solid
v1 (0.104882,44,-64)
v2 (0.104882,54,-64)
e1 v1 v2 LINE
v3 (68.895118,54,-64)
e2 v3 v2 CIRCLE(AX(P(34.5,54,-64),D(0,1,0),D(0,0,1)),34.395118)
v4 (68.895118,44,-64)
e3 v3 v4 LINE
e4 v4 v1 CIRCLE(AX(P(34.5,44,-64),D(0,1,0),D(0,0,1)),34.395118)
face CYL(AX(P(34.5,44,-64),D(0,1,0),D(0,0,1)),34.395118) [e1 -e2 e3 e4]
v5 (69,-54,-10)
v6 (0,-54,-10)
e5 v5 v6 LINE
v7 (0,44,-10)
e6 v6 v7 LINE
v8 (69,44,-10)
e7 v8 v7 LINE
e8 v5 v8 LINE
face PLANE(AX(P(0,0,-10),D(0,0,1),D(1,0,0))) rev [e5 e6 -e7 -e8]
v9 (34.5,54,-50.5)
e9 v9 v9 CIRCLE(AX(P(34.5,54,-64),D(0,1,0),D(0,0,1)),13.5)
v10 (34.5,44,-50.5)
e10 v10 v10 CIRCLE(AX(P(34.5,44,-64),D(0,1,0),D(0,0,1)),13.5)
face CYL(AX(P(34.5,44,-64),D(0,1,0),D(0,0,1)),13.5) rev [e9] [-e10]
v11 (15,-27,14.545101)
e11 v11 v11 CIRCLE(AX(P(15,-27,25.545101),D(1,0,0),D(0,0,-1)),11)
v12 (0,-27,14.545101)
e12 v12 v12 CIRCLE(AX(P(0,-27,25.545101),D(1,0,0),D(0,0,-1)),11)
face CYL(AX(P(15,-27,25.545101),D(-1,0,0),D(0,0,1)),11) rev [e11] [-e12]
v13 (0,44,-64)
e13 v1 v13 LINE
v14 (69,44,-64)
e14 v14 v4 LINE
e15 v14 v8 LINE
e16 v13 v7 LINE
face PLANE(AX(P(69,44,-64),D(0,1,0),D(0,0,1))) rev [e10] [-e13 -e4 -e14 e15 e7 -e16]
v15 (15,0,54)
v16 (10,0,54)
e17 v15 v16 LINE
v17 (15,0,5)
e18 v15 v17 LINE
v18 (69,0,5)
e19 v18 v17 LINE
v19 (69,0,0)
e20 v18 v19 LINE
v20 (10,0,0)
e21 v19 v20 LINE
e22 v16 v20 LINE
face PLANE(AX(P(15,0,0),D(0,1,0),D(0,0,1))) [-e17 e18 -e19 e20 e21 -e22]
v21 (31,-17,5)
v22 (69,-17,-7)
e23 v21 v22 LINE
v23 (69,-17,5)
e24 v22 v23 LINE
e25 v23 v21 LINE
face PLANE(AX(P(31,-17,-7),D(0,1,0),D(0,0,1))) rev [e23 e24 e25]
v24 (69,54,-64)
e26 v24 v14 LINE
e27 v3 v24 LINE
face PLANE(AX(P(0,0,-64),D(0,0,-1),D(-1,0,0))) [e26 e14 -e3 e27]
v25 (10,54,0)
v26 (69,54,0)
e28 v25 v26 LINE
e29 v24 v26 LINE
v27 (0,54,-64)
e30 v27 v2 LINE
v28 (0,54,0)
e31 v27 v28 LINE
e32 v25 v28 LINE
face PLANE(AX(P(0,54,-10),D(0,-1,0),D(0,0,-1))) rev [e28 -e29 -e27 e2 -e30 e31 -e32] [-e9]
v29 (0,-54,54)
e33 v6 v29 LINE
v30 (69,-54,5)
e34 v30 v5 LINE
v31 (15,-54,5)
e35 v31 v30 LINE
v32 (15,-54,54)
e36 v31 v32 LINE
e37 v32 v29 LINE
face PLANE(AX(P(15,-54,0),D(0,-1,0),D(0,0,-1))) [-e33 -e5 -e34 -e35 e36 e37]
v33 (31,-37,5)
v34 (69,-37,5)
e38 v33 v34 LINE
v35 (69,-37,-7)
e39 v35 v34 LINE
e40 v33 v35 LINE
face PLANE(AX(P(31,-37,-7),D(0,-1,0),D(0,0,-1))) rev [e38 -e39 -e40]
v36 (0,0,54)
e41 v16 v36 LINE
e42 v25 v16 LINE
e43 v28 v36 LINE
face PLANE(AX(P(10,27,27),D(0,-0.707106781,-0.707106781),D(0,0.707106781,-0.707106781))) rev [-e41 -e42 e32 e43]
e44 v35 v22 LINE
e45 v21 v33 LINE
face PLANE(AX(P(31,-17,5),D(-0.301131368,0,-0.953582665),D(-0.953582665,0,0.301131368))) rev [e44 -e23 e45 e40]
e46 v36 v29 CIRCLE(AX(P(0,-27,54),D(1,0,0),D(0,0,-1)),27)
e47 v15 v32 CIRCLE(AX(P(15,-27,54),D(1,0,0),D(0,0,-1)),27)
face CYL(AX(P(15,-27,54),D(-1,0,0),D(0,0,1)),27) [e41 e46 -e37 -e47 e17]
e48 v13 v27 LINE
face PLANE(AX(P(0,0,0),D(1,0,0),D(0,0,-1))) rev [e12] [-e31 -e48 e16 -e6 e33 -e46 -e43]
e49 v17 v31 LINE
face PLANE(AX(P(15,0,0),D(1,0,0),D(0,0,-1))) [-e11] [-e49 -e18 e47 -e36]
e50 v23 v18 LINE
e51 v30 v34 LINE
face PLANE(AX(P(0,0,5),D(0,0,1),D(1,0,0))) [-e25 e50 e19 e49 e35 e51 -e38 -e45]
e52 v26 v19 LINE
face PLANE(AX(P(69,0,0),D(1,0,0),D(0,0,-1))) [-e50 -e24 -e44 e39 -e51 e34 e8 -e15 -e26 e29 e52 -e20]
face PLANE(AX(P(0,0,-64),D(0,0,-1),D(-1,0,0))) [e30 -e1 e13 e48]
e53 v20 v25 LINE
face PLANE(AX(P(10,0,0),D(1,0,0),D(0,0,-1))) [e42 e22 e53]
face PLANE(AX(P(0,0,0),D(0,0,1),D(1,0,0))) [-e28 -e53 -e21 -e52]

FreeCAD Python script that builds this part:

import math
import FreeCAD as App
import Part
import Sketcher

doc = App.newDocument("Part")
body = doc.addObject("PartDesign::Body", "Body")

# Sketch on YZ plane
sketch1 = body.newObject("Sketcher::SketchObject", "Sketch")
sketch1.AttachmentSupport = (doc.getObject("YZ_Plane"), [""])
sketch1.MapMode = "FlatFace"
sketch1.addGeometry(Part.LineSegment(App.Vector(54, 0, 0), App.Vector(0, 54, 0)), False)
sketch1.addGeometry(Part.LineSegment(App.Vector(0, 54, 0), App.Vector(0, 0, 0)), False)
sketch1.addGeometry(Part.LineSegment(App.Vector(0, 0, 0), App.Vector(54, 0, 0)), False)
sketch1.addConstraint(Sketcher.Constraint("Coincident", 0, 2, 1, 1))
sketch1.addConstraint(Sketcher.Constraint("Coincident", 1, 2, 2, 1))
sketch1.addConstraint(Sketcher.Constraint("Coincident", 2, 2, 0, 1))
sketch1.addConstraint(Sketcher.Constraint("Vertical", 1))
sketch1.addConstraint(Sketcher.Constraint("Horizontal", 2))
sketch1.addConstraint(Sketcher.Constraint("Coincident", 1, 2, -1, 1))
sketch1.addConstraint(Sketcher.Constraint("Equal", 2, 1))
sketch1.addConstraint(Sketcher.Constraint("DistanceX", 2, 1, 2, 2, 54.0))
pad1 = body.newObject("PartDesign::Pad", "Pad")
pad1.Profile = sketch1
pad1.Length = 10

# Sketch on YZ plane
sketch2 = body.newObject("Sketcher::SketchObject", "Sketch001")
sketch2.AttachmentSupport = (doc.getObject("YZ_Plane"), [""])
sketch2.MapMode = "FlatFace"
sketch2.addGeometry(Part.LineSegment(App.Vector(-54, 54, 0), App.Vector(-54, 0, 0)), False)
sketch2.addGeometry(Part.LineSegment(App.Vector(-54, 0, 0), App.Vector(0, 0, 0)), False)
sketch2.addGeometry(Part.LineSegment(App.Vector(0, 0, 0), App.Vector(0, 54, 0)), False)
sketch2.addGeometry(Part.ArcOfCircle(Part.Circle(App.Vector(-27, 54, 0), App.Vector(0, 0, 1), 27), math.radians(0), math.radians(180)), False)
sketch2.addGeometry(Part.Circle(App.Vector(-27, 26, 0), App.Vector(0, 0, 1), 11), False)
sketch2.addConstraint(Sketcher.Constraint("Coincident", 0, 2, 1, 1))
sketch2.addConstraint(Sketcher.Constraint("Coincident", 1, 2, 2, 1))
sketch2.addConstraint(Sketcher.Constraint("Tangent", 2, 2, 3, 1))
sketch2.addConstraint(Sketcher.Constraint("Tangent", 3, 2, 0, 1))
sketch2.addConstraint(Sketcher.Constraint("Vertical", 0))
sketch2.addConstraint(Sketcher.Constraint("Horizontal", 1))
sketch2.addConstraint(Sketcher.Constraint("Vertical", 2))
sketch2.addConstraint(Sketcher.Constraint("Coincident", 1, 2, -1, 1))
sketch2.addConstraint(Sketcher.Constraint("Vertical", 3, 3, 4, 3))
sketch2.addConstraint(Sketcher.Constraint("Equal", 1, 0))
sketch2.addConstraint(Sketcher.Constraint("Diameter", 4, 22.0))
sketch2.addConstraint(Sketcher.Constraint("Radius", 3, 27.0))
sketch2.addConstraint(Sketcher.Constraint("DistanceY", -1, 1, 4, 3, 25.545101))
pad2 = body.newObject("PartDesign::Pad", "Pad001")
pad2.Profile = sketch2
pad2.Length = 15

# Sketch on XY plane
sketch3 = body.newObject("Sketcher::SketchObject", "Sketch002")
sketch3.AttachmentSupport = (doc.getObject("XY_Plane"), [""])
sketch3.MapMode = "FlatFace"
sketch3.addGeometry(Part.LineSegment(App.Vector(15, 54, 0), App.Vector(15, -54, 0)), False)
sketch3.addGeometry(Part.LineSegment(App.Vector(15, -54, 0), App.Vector(0, -54, 0)), False)
sketch3.addGeometry(Part.LineSegment(App.Vector(0, -54, 0), App.Vector(0, 54, 0)), False)
sketch3.addGeometry(Part.LineSegment(App.Vector(0, 54, 0), App.Vector(15, 54, 0)), False)
sketch3.addConstraint(Sketcher.Constraint("Coincident", 0, 2, 1, 1))
sketch3.addConstraint(Sketcher.Constraint("Coincident", 1, 2, 2, 1))
sketch3.addConstraint(Sketcher.Constraint("Coincident", 2, 2, 3, 1))
sketch3.addConstraint(Sketcher.Constraint("Coincident", 3, 2, 0, 1))
sketch3.addConstraint(Sketcher.Constraint("Vertical", 0))
sketch3.addConstraint(Sketcher.Constraint("Horizontal", 1))
sketch3.addConstraint(Sketcher.Constraint("Vertical", 2))
sketch3.addConstraint(Sketcher.Constraint("Horizontal", 3))
sketch3.addConstraint(Sketcher.Constraint("Symmetric", 1, 2, 2, 2, -1, 1))
sketch3.addConstraint(Sketcher.Constraint("DistanceX", 1, 2, 1, 1, 15.0))
sketch3.addConstraint(Sketcher.Constraint("DistanceY", 0, 2, 0, 1, 108.0))
pad3 = body.newObject("PartDesign::Pad", "Pad002")
pad3.Profile = sketch3
pad3.Length = 10
pad3.Reversed = True

# Sketch on YZ plane
sketch4 = body.newObject("Sketcher::SketchObject", "Sketch003")
sketch4.AttachmentSupport = (doc.getObject("YZ_Plane"), [""])
sketch4.MapMode = "FlatFace"
sketch4.AttachmentOffset = App.Placement(App.Vector(0, 0, 15), App.Rotation())
sketch4.addGeometry(Part.LineSegment(App.Vector(54, -10, 0), App.Vector(54, 0, 0)), False)
sketch4.addGeometry(Part.LineSegment(App.Vector(54, 0, 0), App.Vector(-54, 0, 0)), False)
sketch4.addGeometry(Part.LineSegment(App.Vector(-54, 0, 0), App.Vector(-54, -10, 0)), False)
sketch4.addGeometry(Part.LineSegment(App.Vector(-54, -10, 0), App.Vector(54, -10, 0)), False)
sketch4.addConstraint(Sketcher.Constraint("Coincident", 0, 2, 1, 1))
sketch4.addConstraint(Sketcher.Constraint("Coincident", 1, 2, 2, 1))
sketch4.addConstraint(Sketcher.Constraint("Coincident", 2, 2, 3, 1))
sketch4.addConstraint(Sketcher.Constraint("Coincident", 3, 2, 0, 1))
sketch4.addConstraint(Sketcher.Constraint("Vertical", 0))
sketch4.addConstraint(Sketcher.Constraint("Horizontal", 1))
sketch4.addConstraint(Sketcher.Constraint("Vertical", 2))
sketch4.addConstraint(Sketcher.Constraint("Horizontal", 3))
sketch4.addConstraint(Sketcher.Constraint("Symmetric", 0, 2, 1, 2, -1, 1))
sketch4.addConstraint(Sketcher.Constraint("DistanceX", 1, 2, 1, 1, 108.0))
sketch4.addConstraint(Sketcher.Constraint("DistanceY", 0, 1, 0, 2, 10.0))
pad4 = body.newObject("PartDesign::Pad", "Pad003")
pad4.Profile = sketch4
pad4.Length = 54

# Sketch on XY plane
sketch5 = body.newObject("Sketcher::SketchObject", "Sketch004")
sketch5.AttachmentSupport = (doc.getObject("XY_Plane"), [""])
sketch5.MapMode = "FlatFace"
sketch5.addGeometry(Part.LineSegment(App.Vector(15, 0, 0), App.Vector(15, -54, 0)), False)
sketch5.addGeometry(Part.LineSegment(App.Vector(15, -54, 0), App.Vector(69, -54, 0)), False)
sketch5.addGeometry(Part.LineSegment(App.Vector(69, -54, 0), App.Vector(69, 0, 0)), False)
sketch5.addGeometry(Part.LineSegment(App.Vector(69, 0, 0), App.Vector(15, 0, 0)), False)
sketch5.addConstraint(Sketcher.Constraint("Coincident", 0, 2, 1, 1))
sketch5.addConstraint(Sketcher.Constraint("Coincident", 1, 2, 2, 1))
sketch5.addConstraint(Sketcher.Constraint("Coincident", 2, 2, 3, 1))
sketch5.addConstraint(Sketcher.Constraint("Coincident", 3, 2, 0, 1))
sketch5.addConstraint(Sketcher.Constraint("Vertical", 0))
sketch5.addConstraint(Sketcher.Constraint("Horizontal", 1))
sketch5.addConstraint(Sketcher.Constraint("Vertical", 2))
sketch5.addConstraint(Sketcher.Constraint("Horizontal", 3))
sketch5.addConstraint(Sketcher.Constraint("PointOnObject", 2, 2, -1))
sketch5.addConstraint(Sketcher.Constraint("Equal", 3, 0))
sketch5.addConstraint(Sketcher.Constraint("DistanceX", 1, 1, 1, 2, 54.0))
sketch5.addConstraint(Sketcher.Constraint("DistanceX", -1, 1, 0, 2, 15.0))
pad5 = body.newObject("PartDesign::Pad", "Pad004")
pad5.Profile = sketch5
pad5.Length = 5

# Sketch on XY plane
sketch6 = body.newObject("Sketcher::SketchObject", "Sketch005")
sketch6.AttachmentSupport = (doc.getObject("XY_Plane"), [""])
sketch6.MapMode = "FlatFace"
sketch6.AttachmentOffset = App.Placement(App.Vector(0, 0, -10), App.Rotation())
sketch6.addGeometry(Part.LineSegment(App.Vector(69, 54, 0), App.Vector(69, 44, 0)), False)
sketch6.addGeometry(Part.LineSegment(App.Vector(69, 44, 0), App.Vector(0, 44, 0)), False)
sketch6.addGeometry(Part.LineSegment(App.Vector(0, 44, 0), App.Vector(0, 54, 0)), False)
sketch6.addGeometry(Part.LineSegment(App.Vector(0, 54, 0), App.Vector(69, 54, 0)), False)
sketch6.addConstraint(Sketcher.Constraint("Coincident", 0, 2, 1, 1))
sketch6.addConstraint(Sketcher.Constraint("Coincident", 1, 2, 2, 1))
sketch6.addConstraint(Sketcher.Constraint("Coincident", 2, 2, 3, 1))
sketch6.addConstraint(Sketcher.Constraint("Coincident", 3, 2, 0, 1))
sketch6.addConstraint(Sketcher.Constraint("Vertical", 0))
sketch6.addConstraint(Sketcher.Constraint("Horizontal", 1))
sketch6.addConstraint(Sketcher.Constraint("Vertical", 2))
sketch6.addConstraint(Sketcher.Constraint("Horizontal", 3))
sketch6.addConstraint(Sketcher.Constraint("PointOnObject", 1, 2, -2))
sketch6.addConstraint(Sketcher.Constraint("DistanceX", 1, 2, 1, 1, 69.0))
sketch6.addConstraint(Sketcher.Constraint("DistanceY", 0, 2, 0, 1, 10.0))
sketch6.addConstraint(Sketcher.Constraint("DistanceY", -1, 1, 0, 2, 44.0))
pad6 = body.newObject("PartDesign::Pad", "Pad005")
pad6.Profile = sketch6
pad6.Length = 54
pad6.Reversed = True

# Sketch on XZ plane
sketch7 = body.newObject("Sketcher::SketchObject", "Sketch006")
sketch7.AttachmentSupport = (doc.getObject("XZ_Plane"), [""])
sketch7.MapMode = "FlatFace"
sketch7.AttachmentOffset = App.Placement(App.Vector(0, 0, -54), App.Rotation())
sketch7.addGeometry(Part.Circle(App.Vector(34, -64, 0), App.Vector(0, 0, 1), 34), False)
sketch7.addGeometry(Part.Circle(App.Vector(34, -64, 0), App.Vector(0, 0, 1), 14), False)
sketch7.addConstraint(Sketcher.Constraint("Coincident", 1, 3, 0, 3))
sketch7.addConstraint(Sketcher.Constraint("Diameter", 1, 27.0))
sketch7.addConstraint(Sketcher.Constraint("DistanceY", 0, 3, -1, 1, 64.0))
sketch7.addConstraint(Sketcher.Constraint("DistanceX", -1, 1, 0, 3, 34.5))
sketch7.addConstraint(Sketcher.Constraint("Diameter", 0, 68.790235))
pad7 = body.newObject("PartDesign::Pad", "Pad006")
pad7.Profile = sketch7
pad7.Length = 10

# Sketch on XZ plane
sketch8 = body.newObject("Sketcher::SketchObject", "Sketch007")
sketch8.AttachmentSupport = (doc.getObject("XZ_Plane"), [""])
sketch8.MapMode = "FlatFace"
sketch8.AttachmentOffset = App.Placement(App.Vector(0, 0, -54), App.Rotation())
sketch8.addGeometry(Part.Circle(App.Vector(34, -64, 0), App.Vector(0, 0, 1), 14), False)
sketch8.addConstraint(Sketcher.Constraint("Diameter", 0, 27.0))
sketch8.addConstraint(Sketcher.Constraint("DistanceY", 0, 3, -1, 1, 64.0))
sketch8.addConstraint(Sketcher.Constraint("DistanceX", -1, 1, 0, 3, 34.5))
pocket1 = body.newObject("PartDesign::Pocket", "Pocket")
pocket1.Profile = sketch8
pocket1.Length = 10
pocket1.Reversed = True

# Sketch on XY plane
sketch9 = body.newObject("Sketcher::SketchObject", "Sketch008")
sketch9.AttachmentSupport = (doc.getObject("XY_Plane"), [""])
sketch9.MapMode = "FlatFace"
sketch9.AttachmentOffset = App.Placement(App.Vector(0, 0, 5), App.Rotation())
sketch9.addGeometry(Part.LineSegment(App.Vector(31, -17, 0), App.Vector(31, -37, 0)), False)
sketch9.addGeometry(Part.LineSegment(App.Vector(31, -37, 0), App.Vector(69, -37, 0)), False)
sketch9.addGeometry(Part.LineSegment(App.Vector(69, -37, 0), App.Vector(69, -17, 0)), False)
sketch9.addGeometry(Part.LineSegment(App.Vector(69, -17, 0), App.Vector(31, -17, 0)), False)
sketch9.addConstraint(Sketcher.Constraint("Coincident", 0, 2, 1, 1))
sketch9.addConstraint(Sketcher.Constraint("Coincident", 1, 2, 2, 1))
sketch9.addConstraint(Sketcher.Constraint("Coincident", 2, 2, 3, 1))
sketch9.addConstraint(Sketcher.Constraint("Coincident", 3, 2, 0, 1))
sketch9.addConstraint(Sketcher.Constraint("Vertical", 0))
sketch9.addConstraint(Sketcher.Constraint("Horizontal", 1))
sketch9.addConstraint(Sketcher.Constraint("Vertical", 2))
sketch9.addConstraint(Sketcher.Constraint("Horizontal", 3))
sketch9.addConstraint(Sketcher.Constraint("DistanceX", 1, 1, 1, 2, 38.0))
sketch9.addConstraint(Sketcher.Constraint("DistanceY", 0, 2, 0, 1, 20.0))
sketch9.addConstraint(Sketcher.Constraint("DistanceX", -1, 1, 0, 2, 31.0))
sketch9.addConstraint(Sketcher.Constraint("DistanceY", 0, 2, -1, 1, 37.0))
pocket2 = body.newObject("PartDesign::Pocket", "Pocket001")
pocket2.Profile = sketch9
pocket2.Length = 12

# Sketch on XZ plane
sketch10 = body.newObject("Sketcher::SketchObject", "Sketch009")
sketch10.AttachmentSupport = (doc.getObject("XZ_Plane"), [""])
sketch10.MapMode = "FlatFace"
sketch10.AttachmentOffset = App.Placement(App.Vector(0, 0, 37), App.Rotation())
sketch10.addGeometry(Part.LineSegment(App.Vector(31, 5, 0), App.Vector(69, -7, 0)), False)
sketch10.addGeometry(Part.LineSegment(App.Vector(69, -7, 0), App.Vector(31, -7, 0)), False)
sketch10.addGeometry(Part.LineSegment(App.Vector(31, -7, 0), App.Vector(31, 5, 0)), False)
sketch10.addConstraint(Sketcher.Constraint("Coincident", 0, 2, 1, 1))
sketch10.addConstraint(Sketcher.Constraint("Coincident", 1, 2, 2, 1))
sketch10.addConstraint(Sketcher.Constraint("Coincident", 2, 2, 0, 1))
sketch10.addConstraint(Sketcher.Constraint("Horizontal", 1))
sketch10.addConstraint(Sketcher.Constraint("Vertical", 2))
sketch10.addConstraint(Sketcher.Constraint("DistanceX", 1, 2, 1, 1, 38.0))
sketch10.addConstraint(Sketcher.Constraint("DistanceY", 2, 1, 2, 2, 12.0))
sketch10.addConstraint(Sketcher.Constraint("DistanceX", -1, 1, 0, 2, 69.0))
sketch10.addConstraint(Sketcher.Constraint("DistanceY", 0, 2, -1, 1, 7.0))
pad8 = body.newObject("PartDesign::Pad", "Pad007")
pad8.Profile = sketch10
pad8.Length = 20
pad8.Reversed = True

doc.recompute()
